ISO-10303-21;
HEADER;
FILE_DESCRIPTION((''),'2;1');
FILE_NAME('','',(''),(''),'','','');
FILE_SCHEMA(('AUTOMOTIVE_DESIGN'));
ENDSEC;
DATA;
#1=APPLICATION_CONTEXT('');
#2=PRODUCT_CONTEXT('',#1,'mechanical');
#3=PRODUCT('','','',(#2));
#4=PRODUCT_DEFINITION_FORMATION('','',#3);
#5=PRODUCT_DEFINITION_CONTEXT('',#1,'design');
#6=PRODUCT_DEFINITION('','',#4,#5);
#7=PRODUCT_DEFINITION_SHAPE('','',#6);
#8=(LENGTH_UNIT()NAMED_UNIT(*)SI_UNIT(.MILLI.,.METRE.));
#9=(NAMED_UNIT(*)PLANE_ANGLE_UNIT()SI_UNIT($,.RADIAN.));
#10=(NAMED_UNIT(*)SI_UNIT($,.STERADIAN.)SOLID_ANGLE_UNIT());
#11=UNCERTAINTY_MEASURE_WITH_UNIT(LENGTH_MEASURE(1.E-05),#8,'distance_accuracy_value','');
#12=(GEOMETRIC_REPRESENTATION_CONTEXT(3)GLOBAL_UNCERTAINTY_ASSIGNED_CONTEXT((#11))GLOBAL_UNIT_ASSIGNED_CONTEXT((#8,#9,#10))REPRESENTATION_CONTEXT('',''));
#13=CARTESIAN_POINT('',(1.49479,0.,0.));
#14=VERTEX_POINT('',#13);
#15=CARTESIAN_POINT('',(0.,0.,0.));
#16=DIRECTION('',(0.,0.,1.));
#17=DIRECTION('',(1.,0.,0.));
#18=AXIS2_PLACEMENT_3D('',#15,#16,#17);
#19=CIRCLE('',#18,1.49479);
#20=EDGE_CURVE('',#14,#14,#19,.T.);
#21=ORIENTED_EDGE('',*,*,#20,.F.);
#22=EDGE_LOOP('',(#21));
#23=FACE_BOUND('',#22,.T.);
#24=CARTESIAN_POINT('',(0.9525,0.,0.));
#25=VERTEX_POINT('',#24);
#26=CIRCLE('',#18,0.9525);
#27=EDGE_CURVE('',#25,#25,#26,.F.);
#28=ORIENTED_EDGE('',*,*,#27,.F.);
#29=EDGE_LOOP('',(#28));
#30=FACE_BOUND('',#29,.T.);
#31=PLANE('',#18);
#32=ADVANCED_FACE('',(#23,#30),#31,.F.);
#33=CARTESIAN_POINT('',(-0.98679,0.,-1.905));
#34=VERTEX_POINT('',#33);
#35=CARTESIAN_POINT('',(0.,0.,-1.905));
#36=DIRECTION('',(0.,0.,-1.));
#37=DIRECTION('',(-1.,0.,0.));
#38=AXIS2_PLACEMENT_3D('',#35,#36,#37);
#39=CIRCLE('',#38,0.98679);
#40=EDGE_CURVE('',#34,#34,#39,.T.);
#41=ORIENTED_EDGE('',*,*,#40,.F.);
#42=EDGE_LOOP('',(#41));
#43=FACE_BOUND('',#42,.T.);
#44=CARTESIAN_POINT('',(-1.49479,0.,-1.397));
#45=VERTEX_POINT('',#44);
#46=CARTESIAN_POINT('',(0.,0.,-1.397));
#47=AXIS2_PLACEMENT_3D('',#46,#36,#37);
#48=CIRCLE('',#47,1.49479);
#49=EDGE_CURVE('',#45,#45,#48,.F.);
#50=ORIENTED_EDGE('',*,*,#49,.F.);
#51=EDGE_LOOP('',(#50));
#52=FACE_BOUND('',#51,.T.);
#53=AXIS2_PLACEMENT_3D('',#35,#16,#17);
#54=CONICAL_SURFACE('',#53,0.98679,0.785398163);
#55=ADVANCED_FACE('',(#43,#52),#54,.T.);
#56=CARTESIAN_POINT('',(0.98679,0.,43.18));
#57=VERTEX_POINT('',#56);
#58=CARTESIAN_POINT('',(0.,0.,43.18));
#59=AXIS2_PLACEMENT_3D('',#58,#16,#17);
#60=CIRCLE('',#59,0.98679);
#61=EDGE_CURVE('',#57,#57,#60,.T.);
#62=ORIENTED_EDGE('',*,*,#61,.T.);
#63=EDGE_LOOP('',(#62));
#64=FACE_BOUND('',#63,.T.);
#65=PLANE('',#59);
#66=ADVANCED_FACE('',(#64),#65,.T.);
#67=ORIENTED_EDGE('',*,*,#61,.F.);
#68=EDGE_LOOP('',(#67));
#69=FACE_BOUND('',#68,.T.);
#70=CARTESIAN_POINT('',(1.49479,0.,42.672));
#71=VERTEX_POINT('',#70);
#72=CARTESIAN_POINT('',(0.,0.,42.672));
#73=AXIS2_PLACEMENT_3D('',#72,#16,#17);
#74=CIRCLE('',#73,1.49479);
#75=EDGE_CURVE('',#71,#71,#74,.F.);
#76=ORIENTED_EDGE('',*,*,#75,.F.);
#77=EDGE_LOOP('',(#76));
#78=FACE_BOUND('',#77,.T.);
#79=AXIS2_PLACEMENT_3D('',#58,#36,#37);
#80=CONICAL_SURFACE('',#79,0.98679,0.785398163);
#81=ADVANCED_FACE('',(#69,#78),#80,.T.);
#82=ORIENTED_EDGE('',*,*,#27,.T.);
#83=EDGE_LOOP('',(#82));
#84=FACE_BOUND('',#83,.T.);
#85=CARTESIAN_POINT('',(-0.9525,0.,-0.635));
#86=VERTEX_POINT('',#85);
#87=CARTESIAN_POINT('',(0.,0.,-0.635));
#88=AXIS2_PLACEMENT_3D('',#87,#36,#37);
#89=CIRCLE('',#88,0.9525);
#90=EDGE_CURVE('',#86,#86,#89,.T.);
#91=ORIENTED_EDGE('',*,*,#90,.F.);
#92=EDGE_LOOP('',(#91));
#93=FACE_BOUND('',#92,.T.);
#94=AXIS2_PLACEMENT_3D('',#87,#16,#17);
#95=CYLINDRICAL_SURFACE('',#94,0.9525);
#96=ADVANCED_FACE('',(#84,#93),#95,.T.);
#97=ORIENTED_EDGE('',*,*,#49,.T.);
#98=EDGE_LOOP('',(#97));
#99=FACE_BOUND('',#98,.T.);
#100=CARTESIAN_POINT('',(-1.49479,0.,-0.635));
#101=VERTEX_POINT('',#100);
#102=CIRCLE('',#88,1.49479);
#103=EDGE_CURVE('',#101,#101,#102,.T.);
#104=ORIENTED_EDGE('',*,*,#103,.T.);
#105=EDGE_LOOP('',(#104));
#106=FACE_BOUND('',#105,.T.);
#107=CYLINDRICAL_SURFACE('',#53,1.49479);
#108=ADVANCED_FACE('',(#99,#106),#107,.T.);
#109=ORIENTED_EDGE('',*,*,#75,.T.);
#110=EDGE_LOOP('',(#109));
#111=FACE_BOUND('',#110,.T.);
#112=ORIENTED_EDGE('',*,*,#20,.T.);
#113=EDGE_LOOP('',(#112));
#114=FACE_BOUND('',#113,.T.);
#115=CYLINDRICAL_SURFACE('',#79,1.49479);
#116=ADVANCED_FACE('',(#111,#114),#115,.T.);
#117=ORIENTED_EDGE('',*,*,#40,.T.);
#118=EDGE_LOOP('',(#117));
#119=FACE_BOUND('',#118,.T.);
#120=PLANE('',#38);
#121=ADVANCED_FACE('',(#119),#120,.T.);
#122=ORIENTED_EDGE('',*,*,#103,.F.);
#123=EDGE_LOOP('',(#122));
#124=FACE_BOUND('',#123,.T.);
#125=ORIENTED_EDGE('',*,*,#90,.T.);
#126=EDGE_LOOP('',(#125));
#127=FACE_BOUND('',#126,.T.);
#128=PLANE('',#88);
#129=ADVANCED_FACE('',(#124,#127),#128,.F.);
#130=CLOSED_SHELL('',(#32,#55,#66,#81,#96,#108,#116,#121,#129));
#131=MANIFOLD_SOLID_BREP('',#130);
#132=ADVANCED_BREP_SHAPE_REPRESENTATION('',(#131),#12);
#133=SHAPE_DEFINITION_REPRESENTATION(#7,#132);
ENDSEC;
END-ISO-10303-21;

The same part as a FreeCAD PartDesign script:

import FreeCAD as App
import Part
import Sketcher

V = App.Vector
Q = App.Units.Quantity


def edges_at(feature, points):
    """Names of the edges that pass closest to the given points."""
    edges = feature.Shape.Edges
    near = lambda p: min(range(len(edges)), key=lambda i: edges[i].distToShape(Part.Vertex(*p))[0])
    return sorted({f"Edge{near(p) + 1}" for p in points})

doc = App.newDocument("Part")
body = doc.addObject("PartDesign::Body", "Body")

# Sketch on XY plane
sketch1 = body.newObject("Sketcher::SketchObject", "Sketch")
sketch1.AttachmentSupport = (doc.getObject("XY_Plane"), [""])
sketch1.MapMode = "FlatFace"
sketch1.addGeometry(Part.Circle(V(0, 0, 0), V(0, 0, 1), 1.5), False)
sketch1.addConstraint([
    Sketcher.Constraint("Coincident", 0, 3, -1, 1),
    Sketcher.Constraint("Diameter", 0, Q("0.1177 in")),
])
pad1 = body.newObject("PartDesign::Pad", "Pad")
pad1.Profile = sketch1
pad1.Length = Q("1.7 in")

# Sketch on XY plane
sketch2 = body.newObject("Sketcher::SketchObject", "Sketch001")
sketch2.AttachmentSupport = (doc.getObject("XY_Plane"), [""])
sketch2.MapMode = "FlatFace"
sketch2.addGeometry(Part.Circle(V(0, 0, 0), V(0, 0, 1), 1), False)
sketch2.addConstraint([
    Sketcher.Constraint("Coincident", 0, 3, -1, 1),
    Sketcher.Constraint("Diameter", 0, Q("0.075 in")),
])
pad2 = body.newObject("PartDesign::Pad", "Pad001")
pad2.Profile = sketch2
pad2.Length = Q("0.025 in")
pad2.Reversed = True

# Sketch on XY plane
sketch3 = body.newObject("Sketcher::SketchObject", "Sketch002")
sketch3.AttachmentSupport = (doc.getObject("XY_Plane"), [""])
sketch3.MapMode = "FlatFace"
sketch3.AttachmentOffset = App.Placement(V(0, 0, -0.075 * 25.4), App.Rotation())
sketch3.addGeometry(Part.Circle(V(0, 0, 0), V(0, 0, 1), 1.5), False)
sketch3.addConstraint([
    Sketcher.Constraint("Coincident", 0, 3, -1, 1),
    Sketcher.Constraint("Diameter", 0, Q("0.1177 in")),
])
pad3 = body.newObject("PartDesign::Pad", "Pad002")
pad3.Profile = sketch3
pad3.Length = Q("0.05 in")
doc.recompute()

chamfer = body.newObject("PartDesign::Chamfer", "Chamfer")
chamfer.Base = (pad3, edges_at(pad3, [(-1.495, 0, -1.905), (-1.495, 0, 43.18)]))
chamfer.Size = Q("0.02 in")

doc.recompute()
